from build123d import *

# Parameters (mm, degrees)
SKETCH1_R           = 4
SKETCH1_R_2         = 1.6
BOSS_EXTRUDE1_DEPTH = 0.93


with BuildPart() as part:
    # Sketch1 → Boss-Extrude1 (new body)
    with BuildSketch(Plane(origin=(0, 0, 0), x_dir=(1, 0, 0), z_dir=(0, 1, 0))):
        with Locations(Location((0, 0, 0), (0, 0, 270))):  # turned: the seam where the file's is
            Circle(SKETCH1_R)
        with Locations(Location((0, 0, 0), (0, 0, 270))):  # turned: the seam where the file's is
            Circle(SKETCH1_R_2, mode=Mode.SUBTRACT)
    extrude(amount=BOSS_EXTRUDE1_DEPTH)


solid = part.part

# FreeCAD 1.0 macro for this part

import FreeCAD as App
import Part
import Sketcher

doc = App.newDocument("Part")
body = doc.addObject("PartDesign::Body", "Body")

# Sketch on XZ plane
sketch1 = body.newObject("Sketcher::SketchObject", "Sketch")
sketch1.AttachmentSupport = (doc.getObject("XZ_Plane"), [""])
sketch1.MapMode = "FlatFace"
sketch1.addGeometry([
    Part.Circle(App.Vector(0, 0, 0), App.Vector(0, 0, 1), 4),
    Part.Circle(App.Vector(0, 0, 0), App.Vector(0, 0, 1), 1.6),
], False)
sketch1.addConstraint([
    Sketcher.Constraint("Coincident", 0, 3, -1, 1),
    Sketcher.Constraint("Coincident", 1, 3, -1, 1),
    Sketcher.Constraint("Diameter", 0, 8.0),
    Sketcher.Constraint("Diameter", 1, 3.2),
])
pad1 = body.newObject("PartDesign::Pad", "Pad")
pad1.Profile = sketch1
pad1.Length = 0.93
pad1.Reversed = True

doc.recompute()
